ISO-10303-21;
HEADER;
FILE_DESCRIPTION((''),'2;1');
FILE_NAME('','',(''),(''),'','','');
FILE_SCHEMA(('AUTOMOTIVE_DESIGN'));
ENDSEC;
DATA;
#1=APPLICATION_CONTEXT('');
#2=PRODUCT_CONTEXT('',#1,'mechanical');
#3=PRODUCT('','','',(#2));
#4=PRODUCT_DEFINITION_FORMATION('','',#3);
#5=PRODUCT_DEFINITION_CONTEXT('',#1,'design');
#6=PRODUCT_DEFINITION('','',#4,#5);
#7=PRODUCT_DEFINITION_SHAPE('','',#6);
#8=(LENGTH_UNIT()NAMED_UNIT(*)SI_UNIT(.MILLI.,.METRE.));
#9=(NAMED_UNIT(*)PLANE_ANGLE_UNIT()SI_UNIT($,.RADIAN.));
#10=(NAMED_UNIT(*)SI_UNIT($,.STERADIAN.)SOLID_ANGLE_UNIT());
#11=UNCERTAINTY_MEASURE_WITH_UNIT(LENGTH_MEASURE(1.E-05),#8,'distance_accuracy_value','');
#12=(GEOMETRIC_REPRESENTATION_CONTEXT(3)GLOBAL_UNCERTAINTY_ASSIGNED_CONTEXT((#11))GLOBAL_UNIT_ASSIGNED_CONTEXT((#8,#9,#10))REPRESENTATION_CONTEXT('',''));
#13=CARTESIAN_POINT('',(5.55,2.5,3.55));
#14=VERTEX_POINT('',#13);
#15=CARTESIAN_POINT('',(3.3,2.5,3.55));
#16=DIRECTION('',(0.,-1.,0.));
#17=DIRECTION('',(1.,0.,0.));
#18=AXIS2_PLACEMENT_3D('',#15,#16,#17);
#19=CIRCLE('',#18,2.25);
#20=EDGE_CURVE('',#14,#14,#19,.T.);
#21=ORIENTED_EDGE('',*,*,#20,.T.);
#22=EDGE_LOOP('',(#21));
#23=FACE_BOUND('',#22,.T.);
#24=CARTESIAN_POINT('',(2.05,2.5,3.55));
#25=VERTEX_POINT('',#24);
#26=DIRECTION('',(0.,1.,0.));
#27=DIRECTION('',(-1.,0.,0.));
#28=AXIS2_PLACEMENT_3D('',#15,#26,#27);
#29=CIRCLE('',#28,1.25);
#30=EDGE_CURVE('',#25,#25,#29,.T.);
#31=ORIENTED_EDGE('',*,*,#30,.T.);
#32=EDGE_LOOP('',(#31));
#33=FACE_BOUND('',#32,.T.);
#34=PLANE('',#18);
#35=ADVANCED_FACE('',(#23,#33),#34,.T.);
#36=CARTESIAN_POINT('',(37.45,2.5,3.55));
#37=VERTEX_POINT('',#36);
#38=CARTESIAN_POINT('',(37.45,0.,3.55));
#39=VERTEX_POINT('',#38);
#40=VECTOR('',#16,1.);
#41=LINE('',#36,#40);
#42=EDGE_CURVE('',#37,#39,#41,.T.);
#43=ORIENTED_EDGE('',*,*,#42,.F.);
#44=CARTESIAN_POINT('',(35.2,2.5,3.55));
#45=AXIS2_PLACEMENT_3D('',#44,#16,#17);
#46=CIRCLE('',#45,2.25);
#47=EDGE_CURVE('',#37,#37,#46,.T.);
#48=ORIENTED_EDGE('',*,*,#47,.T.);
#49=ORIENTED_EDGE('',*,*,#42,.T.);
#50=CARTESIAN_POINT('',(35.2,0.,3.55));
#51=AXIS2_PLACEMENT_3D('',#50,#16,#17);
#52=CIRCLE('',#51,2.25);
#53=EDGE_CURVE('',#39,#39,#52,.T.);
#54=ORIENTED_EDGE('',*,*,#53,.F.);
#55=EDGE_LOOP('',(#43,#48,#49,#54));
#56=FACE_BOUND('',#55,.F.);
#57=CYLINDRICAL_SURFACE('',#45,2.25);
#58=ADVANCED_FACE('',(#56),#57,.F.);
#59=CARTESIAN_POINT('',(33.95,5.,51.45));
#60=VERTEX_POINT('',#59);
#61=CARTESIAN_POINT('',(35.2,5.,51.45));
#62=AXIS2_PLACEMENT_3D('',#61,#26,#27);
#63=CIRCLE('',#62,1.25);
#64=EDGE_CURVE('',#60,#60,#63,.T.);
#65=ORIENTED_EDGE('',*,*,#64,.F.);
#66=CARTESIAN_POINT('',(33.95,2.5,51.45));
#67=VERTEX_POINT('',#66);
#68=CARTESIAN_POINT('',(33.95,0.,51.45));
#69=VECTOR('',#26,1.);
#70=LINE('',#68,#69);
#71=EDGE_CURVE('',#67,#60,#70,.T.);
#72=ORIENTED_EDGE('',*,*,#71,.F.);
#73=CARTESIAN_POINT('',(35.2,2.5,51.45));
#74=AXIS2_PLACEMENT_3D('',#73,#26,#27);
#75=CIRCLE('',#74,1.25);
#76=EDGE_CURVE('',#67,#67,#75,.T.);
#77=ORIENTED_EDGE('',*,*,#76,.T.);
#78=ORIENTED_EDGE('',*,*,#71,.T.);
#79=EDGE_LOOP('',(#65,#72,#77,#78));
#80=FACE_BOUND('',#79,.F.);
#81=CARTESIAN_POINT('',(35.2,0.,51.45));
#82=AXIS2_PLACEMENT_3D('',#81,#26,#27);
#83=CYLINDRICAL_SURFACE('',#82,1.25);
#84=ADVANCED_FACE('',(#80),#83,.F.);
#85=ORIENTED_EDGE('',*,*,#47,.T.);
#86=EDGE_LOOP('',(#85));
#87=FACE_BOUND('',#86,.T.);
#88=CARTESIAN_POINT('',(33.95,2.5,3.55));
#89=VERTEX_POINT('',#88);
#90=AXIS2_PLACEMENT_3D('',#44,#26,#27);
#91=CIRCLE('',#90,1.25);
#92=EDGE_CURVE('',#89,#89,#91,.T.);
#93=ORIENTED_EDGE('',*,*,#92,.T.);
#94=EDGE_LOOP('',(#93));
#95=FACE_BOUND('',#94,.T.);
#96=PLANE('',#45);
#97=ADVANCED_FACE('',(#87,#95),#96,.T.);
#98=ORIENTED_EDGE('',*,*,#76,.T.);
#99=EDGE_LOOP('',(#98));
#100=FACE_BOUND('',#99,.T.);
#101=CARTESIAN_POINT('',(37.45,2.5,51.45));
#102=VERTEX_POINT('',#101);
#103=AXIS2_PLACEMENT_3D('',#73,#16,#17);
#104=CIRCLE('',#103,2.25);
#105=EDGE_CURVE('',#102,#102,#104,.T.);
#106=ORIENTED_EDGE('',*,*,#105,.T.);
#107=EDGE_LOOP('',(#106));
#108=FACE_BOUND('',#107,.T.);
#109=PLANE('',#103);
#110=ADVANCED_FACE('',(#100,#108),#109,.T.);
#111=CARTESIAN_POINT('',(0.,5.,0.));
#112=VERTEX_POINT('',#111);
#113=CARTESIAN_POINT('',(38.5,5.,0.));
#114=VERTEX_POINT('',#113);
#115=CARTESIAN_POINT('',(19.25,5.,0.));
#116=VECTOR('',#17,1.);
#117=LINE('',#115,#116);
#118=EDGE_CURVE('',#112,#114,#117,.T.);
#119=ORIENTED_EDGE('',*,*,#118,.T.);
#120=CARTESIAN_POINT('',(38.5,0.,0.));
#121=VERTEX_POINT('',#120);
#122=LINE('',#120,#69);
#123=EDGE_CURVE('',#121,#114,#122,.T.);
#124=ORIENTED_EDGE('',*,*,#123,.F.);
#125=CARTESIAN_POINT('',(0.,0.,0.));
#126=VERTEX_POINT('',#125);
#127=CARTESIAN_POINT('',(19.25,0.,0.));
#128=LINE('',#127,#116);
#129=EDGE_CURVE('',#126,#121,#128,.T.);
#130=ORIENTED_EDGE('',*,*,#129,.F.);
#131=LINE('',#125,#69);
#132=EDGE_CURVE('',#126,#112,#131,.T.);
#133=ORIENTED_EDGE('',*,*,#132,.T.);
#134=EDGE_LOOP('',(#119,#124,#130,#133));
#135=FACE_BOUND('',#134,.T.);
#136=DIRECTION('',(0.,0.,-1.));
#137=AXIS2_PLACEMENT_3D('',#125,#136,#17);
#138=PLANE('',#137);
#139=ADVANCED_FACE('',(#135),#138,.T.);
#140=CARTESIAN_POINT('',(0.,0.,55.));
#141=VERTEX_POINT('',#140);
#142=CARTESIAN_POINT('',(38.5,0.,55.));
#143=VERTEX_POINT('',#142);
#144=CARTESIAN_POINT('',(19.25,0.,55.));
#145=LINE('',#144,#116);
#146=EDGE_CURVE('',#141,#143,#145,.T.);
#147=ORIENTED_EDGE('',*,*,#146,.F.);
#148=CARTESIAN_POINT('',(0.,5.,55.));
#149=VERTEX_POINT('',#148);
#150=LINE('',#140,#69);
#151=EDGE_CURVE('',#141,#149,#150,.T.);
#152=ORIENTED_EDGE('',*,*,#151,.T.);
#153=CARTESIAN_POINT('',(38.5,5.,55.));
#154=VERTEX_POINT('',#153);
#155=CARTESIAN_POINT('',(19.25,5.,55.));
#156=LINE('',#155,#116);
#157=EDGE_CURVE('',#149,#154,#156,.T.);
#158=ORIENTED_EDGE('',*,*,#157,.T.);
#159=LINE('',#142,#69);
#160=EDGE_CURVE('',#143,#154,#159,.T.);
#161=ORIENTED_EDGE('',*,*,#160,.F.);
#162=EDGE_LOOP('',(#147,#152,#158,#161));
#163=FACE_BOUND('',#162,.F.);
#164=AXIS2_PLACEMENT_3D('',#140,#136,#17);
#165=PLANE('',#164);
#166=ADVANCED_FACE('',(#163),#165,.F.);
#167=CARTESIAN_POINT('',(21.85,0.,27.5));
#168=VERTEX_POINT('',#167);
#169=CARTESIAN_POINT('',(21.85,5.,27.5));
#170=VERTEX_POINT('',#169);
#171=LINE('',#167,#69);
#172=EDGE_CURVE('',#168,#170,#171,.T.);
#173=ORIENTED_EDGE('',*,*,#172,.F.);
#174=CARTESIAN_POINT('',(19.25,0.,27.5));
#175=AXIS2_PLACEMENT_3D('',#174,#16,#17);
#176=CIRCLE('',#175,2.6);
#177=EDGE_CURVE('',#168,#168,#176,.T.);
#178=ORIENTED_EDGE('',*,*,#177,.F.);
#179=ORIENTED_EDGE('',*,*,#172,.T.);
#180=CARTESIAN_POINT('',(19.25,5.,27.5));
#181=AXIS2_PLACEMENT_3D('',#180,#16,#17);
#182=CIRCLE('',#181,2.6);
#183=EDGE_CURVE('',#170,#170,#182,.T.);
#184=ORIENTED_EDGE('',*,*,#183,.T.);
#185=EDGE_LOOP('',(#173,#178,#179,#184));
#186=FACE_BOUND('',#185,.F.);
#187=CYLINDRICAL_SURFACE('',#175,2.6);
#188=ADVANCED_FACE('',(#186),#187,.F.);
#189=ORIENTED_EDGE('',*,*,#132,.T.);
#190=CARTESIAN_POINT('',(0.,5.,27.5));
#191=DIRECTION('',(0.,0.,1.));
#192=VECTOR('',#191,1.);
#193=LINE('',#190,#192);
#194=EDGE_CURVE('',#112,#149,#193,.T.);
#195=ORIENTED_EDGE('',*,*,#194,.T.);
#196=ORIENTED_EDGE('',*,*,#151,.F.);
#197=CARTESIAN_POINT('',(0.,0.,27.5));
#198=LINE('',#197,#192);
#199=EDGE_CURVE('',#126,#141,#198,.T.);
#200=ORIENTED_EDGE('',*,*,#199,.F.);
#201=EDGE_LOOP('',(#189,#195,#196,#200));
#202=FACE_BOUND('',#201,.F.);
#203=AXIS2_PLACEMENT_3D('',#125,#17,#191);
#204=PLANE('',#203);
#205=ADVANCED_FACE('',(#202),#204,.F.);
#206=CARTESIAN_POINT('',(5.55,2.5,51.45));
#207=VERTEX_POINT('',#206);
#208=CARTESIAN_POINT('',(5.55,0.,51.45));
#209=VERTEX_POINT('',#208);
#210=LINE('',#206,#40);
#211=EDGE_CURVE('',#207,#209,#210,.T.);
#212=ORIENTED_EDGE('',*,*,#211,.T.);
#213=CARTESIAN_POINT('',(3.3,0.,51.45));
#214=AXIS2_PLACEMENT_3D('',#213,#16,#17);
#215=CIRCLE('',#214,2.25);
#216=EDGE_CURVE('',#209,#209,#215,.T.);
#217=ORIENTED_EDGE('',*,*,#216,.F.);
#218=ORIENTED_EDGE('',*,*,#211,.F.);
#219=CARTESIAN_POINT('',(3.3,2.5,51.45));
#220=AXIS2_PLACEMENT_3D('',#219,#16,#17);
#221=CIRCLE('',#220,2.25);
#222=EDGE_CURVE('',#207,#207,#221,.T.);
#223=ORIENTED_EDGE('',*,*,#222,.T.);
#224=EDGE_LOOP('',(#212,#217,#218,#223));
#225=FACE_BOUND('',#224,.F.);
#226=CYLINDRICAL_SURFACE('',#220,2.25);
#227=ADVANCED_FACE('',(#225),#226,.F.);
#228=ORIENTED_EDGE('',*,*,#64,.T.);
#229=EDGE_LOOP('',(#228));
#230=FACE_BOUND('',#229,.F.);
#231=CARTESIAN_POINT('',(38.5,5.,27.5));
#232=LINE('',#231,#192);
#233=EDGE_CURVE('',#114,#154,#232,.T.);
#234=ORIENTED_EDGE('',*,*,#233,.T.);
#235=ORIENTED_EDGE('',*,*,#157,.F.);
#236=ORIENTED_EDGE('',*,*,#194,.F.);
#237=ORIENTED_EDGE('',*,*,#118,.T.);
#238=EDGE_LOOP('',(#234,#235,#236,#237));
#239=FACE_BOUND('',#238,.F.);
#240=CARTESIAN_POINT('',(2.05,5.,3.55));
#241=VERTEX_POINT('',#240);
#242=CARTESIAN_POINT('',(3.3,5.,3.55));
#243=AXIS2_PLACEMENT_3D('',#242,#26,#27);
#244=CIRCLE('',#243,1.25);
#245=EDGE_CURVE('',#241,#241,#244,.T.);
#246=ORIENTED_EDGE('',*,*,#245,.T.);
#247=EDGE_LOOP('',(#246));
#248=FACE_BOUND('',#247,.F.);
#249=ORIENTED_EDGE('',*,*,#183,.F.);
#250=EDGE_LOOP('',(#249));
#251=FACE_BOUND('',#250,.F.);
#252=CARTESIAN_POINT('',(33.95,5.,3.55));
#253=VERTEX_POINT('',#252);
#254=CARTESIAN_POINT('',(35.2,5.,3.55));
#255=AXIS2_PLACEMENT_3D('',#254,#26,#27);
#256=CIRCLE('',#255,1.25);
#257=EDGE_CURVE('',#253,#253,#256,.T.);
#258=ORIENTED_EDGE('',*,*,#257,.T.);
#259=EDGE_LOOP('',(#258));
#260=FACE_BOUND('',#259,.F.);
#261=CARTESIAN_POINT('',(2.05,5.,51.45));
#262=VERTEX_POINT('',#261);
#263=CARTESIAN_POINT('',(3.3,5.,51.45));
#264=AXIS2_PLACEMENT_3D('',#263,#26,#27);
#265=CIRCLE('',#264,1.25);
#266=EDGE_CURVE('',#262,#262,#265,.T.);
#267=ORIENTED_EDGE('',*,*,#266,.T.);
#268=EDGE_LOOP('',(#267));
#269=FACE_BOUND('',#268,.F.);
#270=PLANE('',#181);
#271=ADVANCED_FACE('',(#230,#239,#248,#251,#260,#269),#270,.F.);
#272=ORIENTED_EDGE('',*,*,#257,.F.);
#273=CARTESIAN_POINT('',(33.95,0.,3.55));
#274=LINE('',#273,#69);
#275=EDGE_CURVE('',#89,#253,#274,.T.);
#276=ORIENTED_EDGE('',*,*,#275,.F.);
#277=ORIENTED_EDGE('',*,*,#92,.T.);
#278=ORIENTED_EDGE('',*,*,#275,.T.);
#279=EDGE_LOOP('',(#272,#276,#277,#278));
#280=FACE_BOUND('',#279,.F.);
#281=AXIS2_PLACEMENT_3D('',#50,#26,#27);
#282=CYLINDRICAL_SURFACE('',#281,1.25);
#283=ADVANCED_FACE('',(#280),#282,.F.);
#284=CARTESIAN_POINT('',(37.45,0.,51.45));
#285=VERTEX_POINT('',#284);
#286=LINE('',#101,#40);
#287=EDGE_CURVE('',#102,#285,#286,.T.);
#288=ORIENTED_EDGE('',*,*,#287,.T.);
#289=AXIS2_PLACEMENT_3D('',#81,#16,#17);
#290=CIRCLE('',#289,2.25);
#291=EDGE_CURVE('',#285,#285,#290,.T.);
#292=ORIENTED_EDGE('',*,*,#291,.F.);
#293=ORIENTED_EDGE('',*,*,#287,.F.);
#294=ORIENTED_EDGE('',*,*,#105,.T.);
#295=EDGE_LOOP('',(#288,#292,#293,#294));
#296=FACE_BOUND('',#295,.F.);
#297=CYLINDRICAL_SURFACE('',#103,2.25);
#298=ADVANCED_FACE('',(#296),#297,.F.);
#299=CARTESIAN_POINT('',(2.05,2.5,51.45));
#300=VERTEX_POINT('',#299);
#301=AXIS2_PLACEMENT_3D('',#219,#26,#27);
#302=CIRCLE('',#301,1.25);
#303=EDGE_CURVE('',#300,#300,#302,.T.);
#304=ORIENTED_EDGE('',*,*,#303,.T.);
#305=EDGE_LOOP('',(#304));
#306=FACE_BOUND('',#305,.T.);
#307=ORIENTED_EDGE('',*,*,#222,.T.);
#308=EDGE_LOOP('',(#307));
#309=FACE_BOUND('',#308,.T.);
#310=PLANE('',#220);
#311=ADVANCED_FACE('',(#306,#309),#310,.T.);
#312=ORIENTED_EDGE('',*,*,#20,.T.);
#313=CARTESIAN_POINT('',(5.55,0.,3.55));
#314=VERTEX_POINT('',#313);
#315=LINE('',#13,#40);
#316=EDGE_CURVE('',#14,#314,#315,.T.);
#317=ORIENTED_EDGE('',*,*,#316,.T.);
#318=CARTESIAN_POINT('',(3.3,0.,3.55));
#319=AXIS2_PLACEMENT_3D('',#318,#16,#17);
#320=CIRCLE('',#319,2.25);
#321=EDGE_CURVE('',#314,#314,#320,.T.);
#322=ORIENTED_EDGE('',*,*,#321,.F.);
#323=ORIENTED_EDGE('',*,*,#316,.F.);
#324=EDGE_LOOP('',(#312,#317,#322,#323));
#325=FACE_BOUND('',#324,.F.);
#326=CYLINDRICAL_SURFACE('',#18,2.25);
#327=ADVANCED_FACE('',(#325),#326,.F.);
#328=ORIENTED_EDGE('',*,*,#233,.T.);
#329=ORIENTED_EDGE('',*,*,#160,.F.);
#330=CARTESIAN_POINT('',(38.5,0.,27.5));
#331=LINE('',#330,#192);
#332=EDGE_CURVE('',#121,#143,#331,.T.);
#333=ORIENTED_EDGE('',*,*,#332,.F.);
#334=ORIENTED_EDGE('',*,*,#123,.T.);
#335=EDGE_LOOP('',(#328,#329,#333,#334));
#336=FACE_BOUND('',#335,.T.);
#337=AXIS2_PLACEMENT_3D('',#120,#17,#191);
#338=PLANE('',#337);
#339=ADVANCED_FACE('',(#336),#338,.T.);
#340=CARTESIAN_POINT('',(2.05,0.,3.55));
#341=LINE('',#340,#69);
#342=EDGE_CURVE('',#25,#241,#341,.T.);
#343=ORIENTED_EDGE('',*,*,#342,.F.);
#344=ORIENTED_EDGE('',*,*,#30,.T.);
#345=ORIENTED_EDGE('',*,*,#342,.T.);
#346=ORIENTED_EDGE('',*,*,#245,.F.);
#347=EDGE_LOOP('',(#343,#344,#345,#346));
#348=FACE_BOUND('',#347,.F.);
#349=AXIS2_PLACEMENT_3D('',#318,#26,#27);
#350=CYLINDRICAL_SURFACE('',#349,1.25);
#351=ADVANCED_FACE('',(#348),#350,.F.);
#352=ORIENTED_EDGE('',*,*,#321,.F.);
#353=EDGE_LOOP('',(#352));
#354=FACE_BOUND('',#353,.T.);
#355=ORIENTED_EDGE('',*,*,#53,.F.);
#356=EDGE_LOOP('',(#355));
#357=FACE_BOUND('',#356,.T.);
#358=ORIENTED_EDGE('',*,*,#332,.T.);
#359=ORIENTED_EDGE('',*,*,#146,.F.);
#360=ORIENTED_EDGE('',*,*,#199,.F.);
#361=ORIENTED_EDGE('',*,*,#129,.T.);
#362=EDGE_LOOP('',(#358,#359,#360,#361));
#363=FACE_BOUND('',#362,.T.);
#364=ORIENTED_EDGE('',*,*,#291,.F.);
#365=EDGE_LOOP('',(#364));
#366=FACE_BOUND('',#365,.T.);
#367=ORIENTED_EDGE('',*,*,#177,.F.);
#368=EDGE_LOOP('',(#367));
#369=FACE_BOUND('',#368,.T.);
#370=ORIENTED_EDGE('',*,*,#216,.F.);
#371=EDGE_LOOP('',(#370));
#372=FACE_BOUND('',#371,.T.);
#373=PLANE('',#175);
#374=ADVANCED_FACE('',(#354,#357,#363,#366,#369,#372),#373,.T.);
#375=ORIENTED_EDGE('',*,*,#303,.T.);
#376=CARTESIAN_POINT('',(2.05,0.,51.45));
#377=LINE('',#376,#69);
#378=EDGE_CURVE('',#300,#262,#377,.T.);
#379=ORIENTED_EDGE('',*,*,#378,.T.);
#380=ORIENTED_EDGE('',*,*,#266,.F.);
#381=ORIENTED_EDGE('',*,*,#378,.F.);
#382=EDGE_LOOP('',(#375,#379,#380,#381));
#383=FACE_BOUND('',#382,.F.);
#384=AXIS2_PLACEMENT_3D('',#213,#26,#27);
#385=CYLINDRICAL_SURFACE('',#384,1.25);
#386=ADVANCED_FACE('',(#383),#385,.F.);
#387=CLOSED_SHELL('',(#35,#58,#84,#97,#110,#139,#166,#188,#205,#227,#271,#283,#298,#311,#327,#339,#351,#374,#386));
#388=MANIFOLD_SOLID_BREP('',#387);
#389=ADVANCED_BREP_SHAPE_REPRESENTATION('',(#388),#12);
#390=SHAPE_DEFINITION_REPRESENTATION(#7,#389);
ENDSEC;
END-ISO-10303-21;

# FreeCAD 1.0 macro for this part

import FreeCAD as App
import Part
import Sketcher
from FreeCAD import Vector
Q = App.Units.Quantity

doc = App.newDocument("Part")
params = doc.addObject("Spreadsheet::Sheet", "Params")
for row, (alias, value) in enumerate([
    ("sketch1_diameter", "5.2 mm"),
    ("sketch1_height", "55 mm"),
    ("sketch1_width", "38.5 mm"),
    ("pad1_length", "5 mm"),
    ("sketch2_diameter", "2.5 mm"),
    ("hole_diameter", "2.5 mm"),
    ("hole_cbore_diameter", "4.5 mm"),
    ("hole_cbore_depth", "2.5 mm"),
], start=1):
    params.set(f"A{row}", alias)
    params.set(f"B{row}", "=" + value)
    params.setAlias(f"B{row}", alias)

body = doc.addObject("PartDesign::Body", "Body")

sketch1 = body.newObject("Sketcher::SketchObject", "Sketch")
sketch1.AttachmentSupport = (doc.getObject("XZ_Plane"), [""])
sketch1.MapMode = "FlatFace"
sketch1.addGeometry(Part.LineSegment(Vector(0, 55, 0), Vector(0, 0, 0)), False)
sketch1.addGeometry(Part.LineSegment(Vector(0, 0, 0), Vector(38.5, 0, 0)), False)
sketch1.addGeometry(Part.LineSegment(Vector(38.5, 0, 0), Vector(38.5, 55, 0)), False)
sketch1.addGeometry(Part.LineSegment(Vector(38.5, 55, 0), Vector(0, 55, 0)), False)
sketch1.addGeometry(Part.Circle(Vector(19.2, 27.5, 0), Vector(0, 0, 1), 2.6), False)
sketch1.addConstraint(Sketcher.Constraint("Coincident", 0, 2, 1, 1))
sketch1.addConstraint(Sketcher.Constraint("Coincident", 1, 2, 2, 1))
sketch1.addConstraint(Sketcher.Constraint("Coincident", 2, 2, 3, 1))
sketch1.addConstraint(Sketcher.Constraint("Coincident", 3, 2, 0, 1))
sketch1.addConstraint(Sketcher.Constraint("Vertical", 0))
sketch1.addConstraint(Sketcher.Constraint("Horizontal", 1))
sketch1.addConstraint(Sketcher.Constraint("Vertical", 2))
sketch1.addConstraint(Sketcher.Constraint("Horizontal", 3))
sketch1.addConstraint(Sketcher.Constraint("Coincident", 0, 2, -1, 1))
sketch1.addConstraint(Sketcher.Constraint("Diameter", 4, Q("5.2 mm")))
sketch1.addConstraint(Sketcher.Constraint("DistanceY", 0, 2, 0, 1, Q("55 mm")))
sketch1.addConstraint(Sketcher.Constraint("DistanceX", 1, 1, 1, 2, Q("38.5 mm")))
sketch1.addConstraint(Sketcher.Constraint("DistanceY", -1, 1, 4, 3, Q("27.5 mm")))
sketch1.addConstraint(Sketcher.Constraint("DistanceX", -1, 1, 4, 3, Q("19.25 mm")))
sketch1.setExpression("Constraints[9]", "Params.sketch1_diameter")
sketch1.setExpression("Constraints[10]", "Params.sketch1_height")
sketch1.setExpression("Constraints[11]", "Params.sketch1_width")
pad1 = body.newObject("PartDesign::Pad", "Pad")
pad1.Profile = sketch1
pad1.setExpression("Length", "Params.pad1_length")
pad1.Reversed = True

sketch2 = body.newObject("Sketcher::SketchObject", "Sketch001")
sketch2.AttachmentSupport = (doc.getObject("XZ_Plane"), [""])
sketch2.MapMode = "FlatFace"
sketch2.addGeometry(Part.Circle(Vector(3.3, 3.5, 0), Vector(0, 0, 1), 1.2), False)
sketch2.addGeometry(Part.Circle(Vector(35.2, 3.5, 0), Vector(0, 0, 1), 1.2), False)
sketch2.addGeometry(Part.Circle(Vector(35.2, 51.5, 0), Vector(0, 0, 1), 1.2), False)
sketch2.addGeometry(Part.Circle(Vector(3.3, 51.5, 0), Vector(0, 0, 1), 1.2), False)
sketch2.addConstraint(Sketcher.Constraint("Equal", 0, 1))
sketch2.addConstraint(Sketcher.Constraint("Equal", 1, 2))
sketch2.addConstraint(Sketcher.Constraint("Equal", 2, 3))
sketch2.addConstraint(Sketcher.Constraint("Horizontal", 0, 3, 1, 3))
sketch2.addConstraint(Sketcher.Constraint("Horizontal", 2, 3, 3, 3))
sketch2.addConstraint(Sketcher.Constraint("Vertical", 1, 3, 2, 3))
sketch2.addConstraint(Sketcher.Constraint("Vertical", 0, 3, 3, 3))
sketch2.addConstraint(Sketcher.Constraint("Diameter", 0, Q("2.5 mm")))
sketch2.addConstraint(Sketcher.Constraint("DistanceX", -1, 1, 0, 3, Q("3.3 mm")))
sketch2.addConstraint(Sketcher.Constraint("DistanceX", -1, 1, 1, 3, Q("35.2 mm")))
sketch2.addConstraint(Sketcher.Constraint("DistanceY", 1, 3, 2, 3, Q("47.9 mm")))
sketch2.addConstraint(Sketcher.Constraint("DistanceY", -1, 1, 0, 3, Q("3.55 mm")))
sketch2.setExpression("Constraints[7]", "Params.sketch2_diameter")
doc.recompute()
hole = body.newObject("PartDesign::Hole", "Hole")
hole.Profile = sketch2
hole.ThreadType = "None"
hole.setExpression("Diameter", "Params.hole_diameter")
hole.DepthType = "ThroughAll"
hole.HoleCutType = "Counterbore"
hole.setExpression("HoleCutDiameter", "Params.hole_cbore_diameter")
hole.setExpression("HoleCutDepth", "Params.hole_cbore_depth")

doc.recompute()
